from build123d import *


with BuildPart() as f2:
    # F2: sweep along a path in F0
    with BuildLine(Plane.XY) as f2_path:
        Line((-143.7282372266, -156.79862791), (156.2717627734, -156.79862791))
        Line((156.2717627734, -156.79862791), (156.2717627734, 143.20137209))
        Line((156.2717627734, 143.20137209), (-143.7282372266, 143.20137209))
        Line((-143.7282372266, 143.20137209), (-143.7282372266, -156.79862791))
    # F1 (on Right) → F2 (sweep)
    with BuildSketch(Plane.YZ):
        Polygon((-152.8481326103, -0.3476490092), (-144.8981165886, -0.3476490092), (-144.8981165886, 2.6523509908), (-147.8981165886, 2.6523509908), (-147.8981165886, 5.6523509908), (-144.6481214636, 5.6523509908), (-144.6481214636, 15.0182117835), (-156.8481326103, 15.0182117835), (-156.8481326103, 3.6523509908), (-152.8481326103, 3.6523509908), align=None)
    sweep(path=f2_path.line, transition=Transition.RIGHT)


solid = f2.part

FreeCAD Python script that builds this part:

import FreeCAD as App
import Part
import Sketcher

V = App.Vector
Q = App.Units.Quantity

doc = App.newDocument("Part")
body = doc.addObject("PartDesign::Body", "Body")

# Sketch on YZ plane
sketch1 = body.newObject("Sketcher::SketchObject", "Sketch")
sketch1.AttachmentSupport = (doc.getObject("YZ_Plane"), [""])
sketch1.MapMode = "FlatFace"
sketch1.addGeometry([
    Part.LineSegment(V(-152.8, -0.3, 0), V(-144.9, -0.3, 0)),  # 0
    Part.LineSegment(V(-144.9, -0.3, 0), V(-144.9, 2.7, 0)),  # 1
    Part.LineSegment(V(-144.9, 2.7, 0), V(-147.9, 2.7, 0)),  # 2
    Part.LineSegment(V(-147.9, 2.7, 0), V(-147.9, 5.7, 0)),  # 3
    Part.LineSegment(V(-147.9, 5.7, 0), V(-144.6, 5.7, 0)),  # 4
    Part.LineSegment(V(-144.6, 5.7, 0), V(-144.6, 15, 0)),  # 5
    Part.LineSegment(V(-144.6, 15, 0), V(-156.8, 15, 0)),  # 6
    Part.LineSegment(V(-156.8, 15, 0), V(-156.8, 3.7, 0)),  # 7
    Part.LineSegment(V(-156.8, 3.7, 0), V(-152.8, 3.7, 0)),  # 8
    Part.LineSegment(V(-152.8, 3.7, 0), V(-152.8, -0.3, 0)),  # 9
], False)
sketch1.addConstraint([
    Sketcher.Constraint("Coincident", 0, 2, 1, 1),
    Sketcher.Constraint("Coincident", 1, 2, 2, 1),
    Sketcher.Constraint("Coincident", 2, 2, 3, 1),
    Sketcher.Constraint("Coincident", 3, 2, 4, 1),
    Sketcher.Constraint("Coincident", 4, 2, 5, 1),
    Sketcher.Constraint("Coincident", 5, 2, 6, 1),
    Sketcher.Constraint("Coincident", 6, 2, 7, 1),
    Sketcher.Constraint("Coincident", 7, 2, 8, 1),
    Sketcher.Constraint("Coincident", 8, 2, 9, 1),
    Sketcher.Constraint("Coincident", 9, 2, 0, 1),
    Sketcher.Constraint("Horizontal", 0),
    Sketcher.Constraint("Vertical", 1),
    Sketcher.Constraint("Horizontal", 2),
    Sketcher.Constraint("Vertical", 3),
    Sketcher.Constraint("Horizontal", 4),
    Sketcher.Constraint("Vertical", 5),
    Sketcher.Constraint("Horizontal", 6),
    Sketcher.Constraint("Vertical", 7),
    Sketcher.Constraint("Horizontal", 8),
    Sketcher.Constraint("Vertical", 9),
    Sketcher.Constraint("Equal", 2, 1),
    Sketcher.Constraint("Equal", 1, 3),
    Sketcher.Constraint("Equal", 8, 9),
    Sketcher.Constraint("DistanceX", 2, 2, 2, 1, Q("3 mm")),
    Sketcher.Constraint("DistanceX", 8, 1, 8, 2, Q("4 mm")),
    Sketcher.Constraint("DistanceX", 6, 2, 6, 1, Q("12.200011 mm")),
    Sketcher.Constraint("DistanceY", 5, 1, 5, 2, Q("9.365861 mm")),
    Sketcher.Constraint("DistanceX", 0, 1, 0, 2, Q("7.950016 mm")),
    Sketcher.Constraint("DistanceY", 0, 2, -1, 1, Q("0.347649 mm")),
    Sketcher.Constraint("DistanceX", 4, 2, -1, 1, Q("144.648121 mm")),
])

# Sketch on XY plane
sketch2 = body.newObject("Sketcher::SketchObject", "Sketch001")
sketch2.AttachmentSupport = (doc.getObject("XY_Plane"), [""])
sketch2.MapMode = "FlatFace"
sketch2.addGeometry([
    Part.LineSegment(V(-144, -157, 0), V(156, -157, 0)),
    Part.LineSegment(V(156, -157, 0), V(156, 143, 0)),
    Part.LineSegment(V(156, 143, 0), V(-144, 143, 0)),
    Part.LineSegment(V(-144, 143, 0), V(-144, -157, 0)),
], False)
sketch2.addConstraint([
    Sketcher.Constraint("Coincident", 0, 2, 1, 1),
    Sketcher.Constraint("Coincident", 1, 2, 2, 1),
    Sketcher.Constraint("Coincident", 2, 2, 3, 1),
    Sketcher.Constraint("Coincident", 3, 2, 0, 1),
    Sketcher.Constraint("Horizontal", 0),
    Sketcher.Constraint("Vertical", 1),
    Sketcher.Constraint("Horizontal", 2),
    Sketcher.Constraint("Vertical", 3),
    Sketcher.Constraint("Equal", 2, 1),
    Sketcher.Constraint("DistanceX", 0, 1, 0, 2, Q("300 mm")),
    Sketcher.Constraint("DistanceX", -1, 1, 0, 2, Q("156.271763 mm")),
    Sketcher.Constraint("DistanceY", 0, 2, -1, 1, Q("156.798628 mm")),
])
doc.recompute()

additivepipe = body.newObject("PartDesign::AdditivePipe", "AdditivePipe")
additivepipe.Profile = sketch1
additivepipe.Spine = (sketch2, ["Edge1", "Edge2", "Edge3", "Edge4"])
additivepipe.Transition = "Right corner"

doc.recompute()
